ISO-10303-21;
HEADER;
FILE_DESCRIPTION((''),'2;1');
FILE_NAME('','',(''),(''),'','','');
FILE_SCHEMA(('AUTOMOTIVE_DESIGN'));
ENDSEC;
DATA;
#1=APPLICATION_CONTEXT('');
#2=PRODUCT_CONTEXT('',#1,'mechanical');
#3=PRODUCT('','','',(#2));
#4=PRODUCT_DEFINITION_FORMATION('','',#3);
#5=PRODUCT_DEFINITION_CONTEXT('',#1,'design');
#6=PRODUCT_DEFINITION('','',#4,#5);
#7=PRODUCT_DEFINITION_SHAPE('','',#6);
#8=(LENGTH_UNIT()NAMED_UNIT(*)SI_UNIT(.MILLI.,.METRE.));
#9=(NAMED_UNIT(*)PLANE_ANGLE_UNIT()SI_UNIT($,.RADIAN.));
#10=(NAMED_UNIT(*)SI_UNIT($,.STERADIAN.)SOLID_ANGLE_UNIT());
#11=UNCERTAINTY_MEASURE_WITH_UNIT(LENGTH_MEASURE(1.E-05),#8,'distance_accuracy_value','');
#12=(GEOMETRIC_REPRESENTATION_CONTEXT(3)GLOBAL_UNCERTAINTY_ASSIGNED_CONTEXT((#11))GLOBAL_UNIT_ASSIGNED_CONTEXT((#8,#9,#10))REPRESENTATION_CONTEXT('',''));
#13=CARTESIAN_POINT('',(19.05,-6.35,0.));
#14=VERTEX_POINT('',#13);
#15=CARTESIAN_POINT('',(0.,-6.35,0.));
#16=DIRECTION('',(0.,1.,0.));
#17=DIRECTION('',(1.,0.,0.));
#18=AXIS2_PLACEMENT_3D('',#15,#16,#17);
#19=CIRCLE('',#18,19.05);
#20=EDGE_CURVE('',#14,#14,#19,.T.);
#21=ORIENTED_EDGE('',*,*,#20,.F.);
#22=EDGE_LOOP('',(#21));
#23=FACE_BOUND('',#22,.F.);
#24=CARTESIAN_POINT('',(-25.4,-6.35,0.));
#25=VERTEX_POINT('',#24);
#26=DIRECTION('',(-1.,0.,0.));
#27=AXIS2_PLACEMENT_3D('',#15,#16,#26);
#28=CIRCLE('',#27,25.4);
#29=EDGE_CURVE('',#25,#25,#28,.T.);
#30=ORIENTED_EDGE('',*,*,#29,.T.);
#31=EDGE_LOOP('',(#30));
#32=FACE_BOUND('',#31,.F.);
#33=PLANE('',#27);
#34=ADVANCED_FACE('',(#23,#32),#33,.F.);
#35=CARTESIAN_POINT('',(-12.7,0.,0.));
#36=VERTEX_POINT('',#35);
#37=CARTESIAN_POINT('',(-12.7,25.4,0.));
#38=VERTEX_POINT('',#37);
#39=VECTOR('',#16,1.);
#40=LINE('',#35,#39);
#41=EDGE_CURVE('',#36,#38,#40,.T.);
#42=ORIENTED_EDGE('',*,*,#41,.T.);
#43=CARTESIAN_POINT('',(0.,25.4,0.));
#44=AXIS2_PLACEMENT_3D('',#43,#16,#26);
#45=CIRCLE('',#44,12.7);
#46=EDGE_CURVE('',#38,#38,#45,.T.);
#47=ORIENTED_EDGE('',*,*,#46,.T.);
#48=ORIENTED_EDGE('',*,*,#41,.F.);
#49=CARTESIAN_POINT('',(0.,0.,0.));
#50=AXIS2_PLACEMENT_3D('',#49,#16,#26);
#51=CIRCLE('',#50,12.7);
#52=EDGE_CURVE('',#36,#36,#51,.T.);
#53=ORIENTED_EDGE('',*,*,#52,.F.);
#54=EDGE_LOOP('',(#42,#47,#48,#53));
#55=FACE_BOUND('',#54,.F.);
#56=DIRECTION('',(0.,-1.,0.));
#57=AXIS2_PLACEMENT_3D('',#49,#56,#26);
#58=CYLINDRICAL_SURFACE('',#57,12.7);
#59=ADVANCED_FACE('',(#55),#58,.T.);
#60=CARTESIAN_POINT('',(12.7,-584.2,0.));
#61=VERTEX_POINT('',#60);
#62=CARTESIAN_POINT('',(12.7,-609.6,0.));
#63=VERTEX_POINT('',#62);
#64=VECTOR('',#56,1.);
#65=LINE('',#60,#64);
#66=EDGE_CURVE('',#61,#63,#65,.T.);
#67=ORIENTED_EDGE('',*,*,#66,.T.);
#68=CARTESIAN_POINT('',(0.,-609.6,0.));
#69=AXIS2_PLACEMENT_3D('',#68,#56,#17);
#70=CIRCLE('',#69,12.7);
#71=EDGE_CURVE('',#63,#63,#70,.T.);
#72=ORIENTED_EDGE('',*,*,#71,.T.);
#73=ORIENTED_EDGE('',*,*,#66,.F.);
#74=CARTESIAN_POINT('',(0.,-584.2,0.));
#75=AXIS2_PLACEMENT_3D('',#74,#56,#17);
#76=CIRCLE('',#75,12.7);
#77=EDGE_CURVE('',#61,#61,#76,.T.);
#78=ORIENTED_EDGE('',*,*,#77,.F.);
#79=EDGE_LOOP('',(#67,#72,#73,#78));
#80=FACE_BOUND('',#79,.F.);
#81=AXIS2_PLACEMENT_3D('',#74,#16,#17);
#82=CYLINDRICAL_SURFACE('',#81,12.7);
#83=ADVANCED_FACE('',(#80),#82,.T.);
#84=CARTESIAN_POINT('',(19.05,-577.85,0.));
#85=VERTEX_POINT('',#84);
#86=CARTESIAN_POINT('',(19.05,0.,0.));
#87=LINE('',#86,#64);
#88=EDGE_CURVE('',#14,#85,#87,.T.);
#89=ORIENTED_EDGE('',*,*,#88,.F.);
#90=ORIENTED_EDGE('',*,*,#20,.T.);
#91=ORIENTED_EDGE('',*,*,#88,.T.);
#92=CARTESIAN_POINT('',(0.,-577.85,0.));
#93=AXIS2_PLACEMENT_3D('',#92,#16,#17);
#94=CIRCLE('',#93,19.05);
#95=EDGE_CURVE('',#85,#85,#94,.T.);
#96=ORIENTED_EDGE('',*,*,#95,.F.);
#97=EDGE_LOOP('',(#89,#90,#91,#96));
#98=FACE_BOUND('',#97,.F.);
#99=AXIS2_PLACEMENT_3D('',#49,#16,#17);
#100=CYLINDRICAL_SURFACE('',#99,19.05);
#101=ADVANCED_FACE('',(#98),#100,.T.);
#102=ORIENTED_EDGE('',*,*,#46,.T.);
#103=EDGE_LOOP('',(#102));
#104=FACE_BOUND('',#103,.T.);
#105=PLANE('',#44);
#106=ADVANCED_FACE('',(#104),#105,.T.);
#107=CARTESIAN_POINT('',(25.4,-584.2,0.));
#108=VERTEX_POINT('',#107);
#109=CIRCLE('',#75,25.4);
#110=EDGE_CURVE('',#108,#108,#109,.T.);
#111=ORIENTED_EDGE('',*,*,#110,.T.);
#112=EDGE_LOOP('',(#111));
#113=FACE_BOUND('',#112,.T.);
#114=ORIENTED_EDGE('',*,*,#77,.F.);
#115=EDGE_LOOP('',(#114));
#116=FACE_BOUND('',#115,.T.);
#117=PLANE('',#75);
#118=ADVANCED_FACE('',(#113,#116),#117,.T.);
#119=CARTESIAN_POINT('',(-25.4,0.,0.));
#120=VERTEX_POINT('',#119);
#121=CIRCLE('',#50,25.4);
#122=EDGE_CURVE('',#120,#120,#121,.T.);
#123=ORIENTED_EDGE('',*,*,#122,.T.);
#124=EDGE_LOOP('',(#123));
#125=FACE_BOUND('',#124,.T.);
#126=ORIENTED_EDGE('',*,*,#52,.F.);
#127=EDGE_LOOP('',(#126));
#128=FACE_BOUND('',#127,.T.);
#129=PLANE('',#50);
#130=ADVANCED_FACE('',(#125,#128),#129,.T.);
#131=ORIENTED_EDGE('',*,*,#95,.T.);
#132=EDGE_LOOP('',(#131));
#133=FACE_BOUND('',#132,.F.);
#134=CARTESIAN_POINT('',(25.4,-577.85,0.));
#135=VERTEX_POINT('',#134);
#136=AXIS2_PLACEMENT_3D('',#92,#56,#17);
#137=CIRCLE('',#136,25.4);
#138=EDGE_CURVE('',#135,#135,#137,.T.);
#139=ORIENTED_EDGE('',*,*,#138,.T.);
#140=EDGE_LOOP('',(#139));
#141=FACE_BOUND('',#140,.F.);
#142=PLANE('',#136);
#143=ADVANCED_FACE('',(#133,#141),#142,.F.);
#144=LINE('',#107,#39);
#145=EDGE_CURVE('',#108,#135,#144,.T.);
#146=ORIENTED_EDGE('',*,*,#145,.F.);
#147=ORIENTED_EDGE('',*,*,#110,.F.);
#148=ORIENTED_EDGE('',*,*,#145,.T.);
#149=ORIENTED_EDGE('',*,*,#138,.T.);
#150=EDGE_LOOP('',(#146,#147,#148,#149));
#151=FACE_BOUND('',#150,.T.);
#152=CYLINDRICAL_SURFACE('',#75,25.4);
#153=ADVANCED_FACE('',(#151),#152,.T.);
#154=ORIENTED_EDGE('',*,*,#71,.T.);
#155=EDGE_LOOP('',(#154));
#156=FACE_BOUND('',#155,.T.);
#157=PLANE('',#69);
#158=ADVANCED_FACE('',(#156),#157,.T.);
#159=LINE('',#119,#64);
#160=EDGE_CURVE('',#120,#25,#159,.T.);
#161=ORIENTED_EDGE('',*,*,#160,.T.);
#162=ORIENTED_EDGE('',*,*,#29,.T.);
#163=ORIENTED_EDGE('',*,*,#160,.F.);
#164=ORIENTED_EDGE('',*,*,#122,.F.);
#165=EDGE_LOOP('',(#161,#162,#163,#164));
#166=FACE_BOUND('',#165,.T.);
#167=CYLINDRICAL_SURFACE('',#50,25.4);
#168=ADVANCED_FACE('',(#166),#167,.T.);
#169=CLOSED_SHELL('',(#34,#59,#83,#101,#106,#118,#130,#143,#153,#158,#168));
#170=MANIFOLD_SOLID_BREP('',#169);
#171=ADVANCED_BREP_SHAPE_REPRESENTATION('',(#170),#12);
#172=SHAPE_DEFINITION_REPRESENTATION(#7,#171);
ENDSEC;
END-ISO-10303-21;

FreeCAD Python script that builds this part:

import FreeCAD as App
import Part
import Sketcher
Q = App.Units.Quantity

doc = App.newDocument("Part")
body = doc.addObject("PartDesign::Body", "Body")

# Sketch on XZ plane
sketch1 = body.newObject("Sketcher::SketchObject", "Sketch")
sketch1.AttachmentSupport = (doc.getObject("XZ_Plane"), [""])
sketch1.MapMode = "FlatFace"
sketch1.addGeometry(Part.Circle(App.Vector(0, 0, 0), App.Vector(0, 0, 1), 19), False)
sketch1.addConstraint([
    Sketcher.Constraint("Coincident", 0, 3, -1, 1),
    Sketcher.Constraint("Diameter", 0, Q("1.5 in")),
])
pad1 = body.newObject("PartDesign::Pad", "Pad")
pad1.Profile = sketch1
pad1.Length = Q("23 in")

# Sketch on XZ plane
sketch2 = body.newObject("Sketcher::SketchObject", "Sketch001")
sketch2.AttachmentSupport = (doc.getObject("XZ_Plane"), [""])
sketch2.MapMode = "FlatFace"
sketch2.AttachmentOffset = App.Placement(App.Vector(0, 0, 23 * 25.4), App.Rotation())
sketch2.addGeometry(Part.Circle(App.Vector(0, 0, 0), App.Vector(0, 0, 1), 25), False)
sketch2.addConstraint([
    Sketcher.Constraint("Coincident", 0, 3, -1, 1),
    Sketcher.Constraint("Diameter", 0, Q("2 in")),
])
pad2 = body.newObject("PartDesign::Pad", "Pad001")
pad2.Profile = sketch2
pad2.Length = Q("0.25 in")
pad2.Reversed = True

# Sketch on XZ plane
sketch3 = body.newObject("Sketcher::SketchObject", "Sketch002")
sketch3.AttachmentSupport = (doc.getObject("XZ_Plane"), [""])
sketch3.MapMode = "FlatFace"
sketch3.addGeometry([
    Part.Circle(App.Vector(0, 0, 0), App.Vector(0, 0, 1), 25),
    Part.Circle(App.Vector(0, 0, 0), App.Vector(0, 0, 1), 19),
], False)
sketch3.addConstraint([
    Sketcher.Constraint("Coincident", 0, 3, -1, 1),
    Sketcher.Constraint("Coincident", 1, 3, -1, 1),
    Sketcher.Constraint("Diameter", 0, Q("2 in")),
    Sketcher.Constraint("Diameter", 1, Q("1.5 in")),
])
pad3 = body.newObject("PartDesign::Pad", "Pad002")
pad3.Profile = sketch3
pad3.Length = Q("0.25 in")

# Sketch on XZ plane
sketch4 = body.newObject("Sketcher::SketchObject", "Sketch003")
sketch4.AttachmentSupport = (doc.getObject("XZ_Plane"), [""])
sketch4.MapMode = "FlatFace"
sketch4.AttachmentOffset = App.Placement(App.Vector(0, 0, 23 * 25.4), App.Rotation())
sketch4.addGeometry(Part.Circle(App.Vector(0, 0, 0), App.Vector(0, 0, 1), 13), False)
sketch4.addConstraint([
    Sketcher.Constraint("Coincident", 0, 3, -1, 1),
    Sketcher.Constraint("Diameter", 0, Q("1 in")),
])
pad4 = body.newObject("PartDesign::Pad", "Pad003")
pad4.Profile = sketch4
pad4.Length = Q("1 in")

# Sketch on XZ plane
sketch5 = body.newObject("Sketcher::SketchObject", "Sketch004")
sketch5.AttachmentSupport = (doc.getObject("XZ_Plane"), [""])
sketch5.MapMode = "FlatFace"
sketch5.addGeometry(Part.Circle(App.Vector(0, 0, 0), App.Vector(0, 0, 1), 13), False)
sketch5.addConstraint([
    Sketcher.Constraint("Coincident", 0, 3, -1, 1),
    Sketcher.Constraint("Diameter", 0, Q("1 in")),
])
pad5 = body.newObject("PartDesign::Pad", "Pad004")
pad5.Profile = sketch5
pad5.Length = Q("1 in")
pad5.Reversed = True

doc.recompute()
